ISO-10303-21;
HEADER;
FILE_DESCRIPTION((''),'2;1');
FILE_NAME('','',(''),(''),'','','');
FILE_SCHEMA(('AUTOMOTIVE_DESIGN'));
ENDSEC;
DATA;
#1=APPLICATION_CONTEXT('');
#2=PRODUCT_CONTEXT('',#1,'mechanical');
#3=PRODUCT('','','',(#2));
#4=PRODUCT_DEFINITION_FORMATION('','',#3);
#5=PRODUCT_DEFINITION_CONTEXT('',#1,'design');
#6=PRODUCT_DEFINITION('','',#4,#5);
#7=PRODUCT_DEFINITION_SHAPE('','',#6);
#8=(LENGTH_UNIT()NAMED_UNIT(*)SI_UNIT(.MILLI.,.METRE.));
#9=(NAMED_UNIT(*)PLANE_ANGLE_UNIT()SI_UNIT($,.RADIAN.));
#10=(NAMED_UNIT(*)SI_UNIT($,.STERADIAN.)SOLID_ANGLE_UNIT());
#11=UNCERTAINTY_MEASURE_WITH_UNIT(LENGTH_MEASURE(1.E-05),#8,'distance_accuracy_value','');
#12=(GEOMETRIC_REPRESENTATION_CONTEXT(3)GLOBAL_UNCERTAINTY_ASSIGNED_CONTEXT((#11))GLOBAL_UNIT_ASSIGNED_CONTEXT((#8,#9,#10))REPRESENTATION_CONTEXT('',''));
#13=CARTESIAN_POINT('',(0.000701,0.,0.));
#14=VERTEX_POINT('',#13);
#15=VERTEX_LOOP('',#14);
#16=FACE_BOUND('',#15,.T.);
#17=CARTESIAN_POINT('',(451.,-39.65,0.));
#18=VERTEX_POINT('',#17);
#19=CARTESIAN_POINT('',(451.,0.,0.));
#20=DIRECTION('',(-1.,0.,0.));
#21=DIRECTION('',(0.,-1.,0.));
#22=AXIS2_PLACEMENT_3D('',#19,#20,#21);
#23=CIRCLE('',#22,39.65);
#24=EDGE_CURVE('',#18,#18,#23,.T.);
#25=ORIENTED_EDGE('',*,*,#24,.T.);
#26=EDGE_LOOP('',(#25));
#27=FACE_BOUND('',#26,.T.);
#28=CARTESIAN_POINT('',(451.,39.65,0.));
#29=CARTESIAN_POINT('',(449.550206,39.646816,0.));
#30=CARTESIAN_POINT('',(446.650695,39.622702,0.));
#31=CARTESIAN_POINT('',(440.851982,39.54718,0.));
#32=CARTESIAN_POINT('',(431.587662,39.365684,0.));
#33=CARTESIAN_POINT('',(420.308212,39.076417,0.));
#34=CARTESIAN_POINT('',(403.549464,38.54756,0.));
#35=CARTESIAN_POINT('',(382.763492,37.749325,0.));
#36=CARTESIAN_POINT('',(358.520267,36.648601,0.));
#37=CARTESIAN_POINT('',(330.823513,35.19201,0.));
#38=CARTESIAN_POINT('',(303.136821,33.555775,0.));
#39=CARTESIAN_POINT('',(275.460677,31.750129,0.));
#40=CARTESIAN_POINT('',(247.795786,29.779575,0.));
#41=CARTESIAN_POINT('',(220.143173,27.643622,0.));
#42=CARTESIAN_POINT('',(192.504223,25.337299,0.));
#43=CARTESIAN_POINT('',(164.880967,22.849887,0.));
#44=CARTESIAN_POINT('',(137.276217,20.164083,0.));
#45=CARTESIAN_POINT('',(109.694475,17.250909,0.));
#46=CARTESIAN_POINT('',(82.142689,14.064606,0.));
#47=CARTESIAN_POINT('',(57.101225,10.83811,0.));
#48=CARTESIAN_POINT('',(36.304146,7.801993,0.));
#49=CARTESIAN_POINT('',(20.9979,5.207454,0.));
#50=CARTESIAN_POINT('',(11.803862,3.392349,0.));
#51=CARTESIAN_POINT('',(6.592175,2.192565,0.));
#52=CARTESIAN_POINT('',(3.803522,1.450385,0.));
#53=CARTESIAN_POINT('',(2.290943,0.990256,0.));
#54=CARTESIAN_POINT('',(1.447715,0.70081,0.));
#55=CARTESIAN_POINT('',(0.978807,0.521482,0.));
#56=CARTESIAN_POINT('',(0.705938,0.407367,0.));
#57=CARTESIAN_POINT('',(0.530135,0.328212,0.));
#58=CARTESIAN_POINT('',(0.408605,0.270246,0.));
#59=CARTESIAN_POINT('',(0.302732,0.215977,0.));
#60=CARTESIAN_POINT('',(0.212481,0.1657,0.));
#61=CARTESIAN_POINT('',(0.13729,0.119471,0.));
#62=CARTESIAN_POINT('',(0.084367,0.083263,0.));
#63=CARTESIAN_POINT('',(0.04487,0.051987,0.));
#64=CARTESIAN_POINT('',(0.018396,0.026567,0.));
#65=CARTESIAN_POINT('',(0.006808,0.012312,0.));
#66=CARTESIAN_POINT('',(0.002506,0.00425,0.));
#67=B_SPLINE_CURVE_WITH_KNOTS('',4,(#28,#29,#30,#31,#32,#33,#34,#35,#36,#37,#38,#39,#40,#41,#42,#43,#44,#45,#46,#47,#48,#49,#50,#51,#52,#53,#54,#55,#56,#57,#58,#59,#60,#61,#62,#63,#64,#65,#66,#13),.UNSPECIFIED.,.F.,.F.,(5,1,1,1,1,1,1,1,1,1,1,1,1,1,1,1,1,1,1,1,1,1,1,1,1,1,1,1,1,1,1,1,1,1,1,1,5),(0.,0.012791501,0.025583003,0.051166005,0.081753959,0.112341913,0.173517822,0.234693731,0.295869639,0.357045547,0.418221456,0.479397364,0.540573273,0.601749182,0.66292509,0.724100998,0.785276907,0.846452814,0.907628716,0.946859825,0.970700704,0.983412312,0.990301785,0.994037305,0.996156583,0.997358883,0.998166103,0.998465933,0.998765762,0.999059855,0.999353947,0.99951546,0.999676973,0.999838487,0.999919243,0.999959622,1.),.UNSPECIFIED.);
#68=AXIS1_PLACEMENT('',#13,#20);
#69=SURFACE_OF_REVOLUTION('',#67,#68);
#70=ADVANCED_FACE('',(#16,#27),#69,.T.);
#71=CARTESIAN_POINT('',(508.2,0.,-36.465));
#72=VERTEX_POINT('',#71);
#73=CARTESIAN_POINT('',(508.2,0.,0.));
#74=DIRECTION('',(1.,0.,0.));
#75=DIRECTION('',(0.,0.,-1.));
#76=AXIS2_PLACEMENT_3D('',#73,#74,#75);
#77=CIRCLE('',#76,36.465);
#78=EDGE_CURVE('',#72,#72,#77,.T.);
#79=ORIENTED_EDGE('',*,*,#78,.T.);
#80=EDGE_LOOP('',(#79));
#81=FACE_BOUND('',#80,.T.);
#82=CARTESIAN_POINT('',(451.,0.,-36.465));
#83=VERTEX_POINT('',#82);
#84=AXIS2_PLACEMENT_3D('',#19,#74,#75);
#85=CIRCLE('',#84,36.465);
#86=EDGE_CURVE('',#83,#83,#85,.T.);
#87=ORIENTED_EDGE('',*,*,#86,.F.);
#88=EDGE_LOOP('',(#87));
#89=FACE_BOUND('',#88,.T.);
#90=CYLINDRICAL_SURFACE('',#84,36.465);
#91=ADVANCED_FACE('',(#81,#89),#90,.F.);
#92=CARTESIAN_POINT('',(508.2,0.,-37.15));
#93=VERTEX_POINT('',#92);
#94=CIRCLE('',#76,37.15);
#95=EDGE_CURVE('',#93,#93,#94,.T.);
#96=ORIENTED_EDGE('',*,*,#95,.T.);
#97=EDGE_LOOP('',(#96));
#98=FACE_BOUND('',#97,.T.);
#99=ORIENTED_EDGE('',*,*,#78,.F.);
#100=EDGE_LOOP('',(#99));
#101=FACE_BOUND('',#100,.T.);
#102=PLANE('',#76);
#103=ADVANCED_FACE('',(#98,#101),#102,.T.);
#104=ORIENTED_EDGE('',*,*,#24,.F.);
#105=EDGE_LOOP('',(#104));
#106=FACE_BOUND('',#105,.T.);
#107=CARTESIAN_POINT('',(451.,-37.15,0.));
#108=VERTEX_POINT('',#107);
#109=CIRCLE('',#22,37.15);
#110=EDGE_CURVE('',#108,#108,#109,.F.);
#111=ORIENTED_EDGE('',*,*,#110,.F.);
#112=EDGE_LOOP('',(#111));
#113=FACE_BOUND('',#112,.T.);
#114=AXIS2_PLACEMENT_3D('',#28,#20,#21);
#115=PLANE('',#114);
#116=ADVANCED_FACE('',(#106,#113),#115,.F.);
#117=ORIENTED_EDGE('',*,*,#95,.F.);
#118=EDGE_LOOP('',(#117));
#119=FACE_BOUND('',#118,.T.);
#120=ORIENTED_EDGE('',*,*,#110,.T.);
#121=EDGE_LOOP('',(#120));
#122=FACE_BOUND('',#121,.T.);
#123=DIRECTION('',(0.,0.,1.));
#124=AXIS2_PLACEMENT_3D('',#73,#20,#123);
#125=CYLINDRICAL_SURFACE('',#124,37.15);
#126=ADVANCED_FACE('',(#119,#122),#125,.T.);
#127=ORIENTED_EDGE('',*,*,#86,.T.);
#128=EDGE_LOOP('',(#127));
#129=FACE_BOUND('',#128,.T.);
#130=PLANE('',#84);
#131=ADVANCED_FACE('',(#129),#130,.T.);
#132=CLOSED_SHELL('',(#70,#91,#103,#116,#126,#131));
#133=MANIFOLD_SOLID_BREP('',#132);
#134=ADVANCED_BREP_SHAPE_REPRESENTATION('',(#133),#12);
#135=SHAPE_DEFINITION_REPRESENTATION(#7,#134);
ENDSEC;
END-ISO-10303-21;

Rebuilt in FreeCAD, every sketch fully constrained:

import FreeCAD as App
import Part
import Sketcher
from FreeCAD import Vector
Q = App.Units.Quantity

doc = App.newDocument("Part")
body = doc.addObject("PartDesign::Body", "Body")

sketch1 = body.newObject("Sketcher::SketchObject", "Sketch")
sketch1.AttachmentSupport = (doc.getObject("XY_Plane"), [""])
sketch1.MapMode = "FlatFace"
sketch1.addGeometry(Part.LineSegment(Vector(451, 0, 0), Vector(451, 39.65, 0)), False)
sketch1.addGeometry(Part.BSplineCurve([Vector(0.000701, 0, 0), Vector(0.002506, 0.00425, 0), Vector(0.006808, 0.012312, 0), Vector(0.018396, 0.026567, 0), Vector(0.04487, 0.051987, 0), Vector(0.084367, 0.083263, 0), Vector(0.13729, 0.119471, 0), Vector(0.212481, 0.1657, 0), Vector(0.302732, 0.215977, 0), Vector(0.408605, 0.270246, 0), Vector(0.530135, 0.328212, 0), Vector(0.705938, 0.407367, 0), Vector(0.978807, 0.521482, 0), Vector(1.447715, 0.70081, 0), Vector(2.290943, 0.990256, 0), Vector(3.803522, 1.450385, 0), Vector(6.592175, 2.192565, 0), Vector(11.803862, 3.392349, 0), Vector(20.9979, 5.207454, 0), Vector(36.304146, 7.801993, 0), Vector(57.101225, 10.83811, 0), Vector(82.142689, 14.064606, 0), Vector(109.694475, 17.250909, 0), Vector(137.276217, 20.164083, 0), Vector(164.880967, 22.849887, 0), Vector(192.504223, 25.337299, 0), Vector(220.143173, 27.643622, 0), Vector(247.795786, 29.779575, 0), Vector(275.460677, 31.750129, 0), Vector(303.136821, 33.555775, 0), Vector(330.823513, 35.19201, 0), Vector(358.520267, 36.648601, 0), Vector(382.763492, 37.749325, 0), Vector(403.549464, 38.54756, 0), Vector(420.308212, 39.076417, 0), Vector(431.587662, 39.365684, 0), Vector(440.851982, 39.54718, 0), Vector(446.650695, 39.622702, 0), Vector(449.550206, 39.646816, 0), Vector(451, 39.65, 0)], [5, 1, 1, 1, 1, 1, 1, 1, 1, 1, 1, 1, 1, 1, 1, 1, 1, 1, 1, 1, 1, 1, 1, 1, 1, 1, 1, 1, 1, 1, 1, 1, 1, 1, 1, 1, 5], [0, 0.000040378, 0.000080757, 0.000161513, 0.000323027, 0.00048454, 0.000646053, 0.000940145, 0.001234238, 0.001534067, 0.001833897, 0.002641117, 0.003843417, 0.005962695, 0.009698215, 0.016587688, 0.029299296, 0.053140175, 0.092371284, 0.153547186, 0.214723093, 0.275899002, 0.33707491, 0.398250818, 0.459426727, 0.520602636, 0.581778544, 0.642954453, 0.704130361, 0.765306269, 0.826482178, 0.887658087, 0.918246041, 0.948833995, 0.974416997, 0.987208499, 1], False, 4, [1, 1, 1, 1, 1, 1, 1, 1, 1, 1, 1, 1, 1, 1, 1, 1, 1, 1, 1, 1, 1, 1, 1, 1, 1, 1, 1, 1, 1, 1, 1, 1, 1, 1, 1, 1, 1, 1, 1, 1], False), False)
sketch1.addGeometry(Part.LineSegment(Vector(0.000701, 0, 0), Vector(451, 0, 0)), False)
sketch1.addConstraint(Sketcher.Constraint("Block", 1))
sketch1.addConstraint(Sketcher.Constraint("Coincident", 0, 2, 1, 2))
sketch1.addConstraint(Sketcher.Constraint("Coincident", 1, 1, 2, 1))
sketch1.addConstraint(Sketcher.Constraint("Coincident", 2, 2, 0, 1))
sketch1.addConstraint(Sketcher.Constraint("Vertical", 0))
sketch1.addConstraint(Sketcher.Constraint("Horizontal", 2))
revolution = body.newObject("PartDesign::Revolution", "Revolution")
revolution.Profile = sketch1
revolution.ReferenceAxis = (sketch1, ["H_Axis"])
revolution.Angle = 360

sketch2 = body.newObject("Sketcher::SketchObject", "Sketch001")
sketch2.AttachmentSupport = (doc.getObject("YZ_Plane"), [""])
sketch2.MapMode = "FlatFace"
sketch2.AttachmentOffset = App.Placement(Vector(0, 0, 451), App.Rotation())
sketch2.addGeometry(Part.Circle(Vector(0, 0, 0), Vector(0, 0, 1), 37.15), False)
sketch2.addConstraint(Sketcher.Constraint("Coincident", 0, 3, -1, 1))
sketch2.addConstraint(Sketcher.Constraint("Diameter", 0, Q("74.3 mm")))
pad1 = body.newObject("PartDesign::Pad", "Pad")
pad1.Profile = sketch2
pad1.Length = 57.2

sketch3 = body.newObject("Sketcher::SketchObject", "Sketch002")
sketch3.AttachmentSupport = (doc.getObject("YZ_Plane"), [""])
sketch3.MapMode = "FlatFace"
sketch3.AttachmentOffset = App.Placement(Vector(0, 0, 508.2), App.Rotation())
sketch3.addGeometry(Part.Circle(Vector(0, 0, 0), Vector(0, 0, 1), 36.465), False)
sketch3.addConstraint(Sketcher.Constraint("Coincident", 0, 3, -1, 1))
sketch3.addConstraint(Sketcher.Constraint("Diameter", 0, Q("72.93 mm")))
pocket1 = body.newObject("PartDesign::Pocket", "Pocket")
pocket1.Profile = sketch3
pocket1.Length = 57.2

doc.recompute()
